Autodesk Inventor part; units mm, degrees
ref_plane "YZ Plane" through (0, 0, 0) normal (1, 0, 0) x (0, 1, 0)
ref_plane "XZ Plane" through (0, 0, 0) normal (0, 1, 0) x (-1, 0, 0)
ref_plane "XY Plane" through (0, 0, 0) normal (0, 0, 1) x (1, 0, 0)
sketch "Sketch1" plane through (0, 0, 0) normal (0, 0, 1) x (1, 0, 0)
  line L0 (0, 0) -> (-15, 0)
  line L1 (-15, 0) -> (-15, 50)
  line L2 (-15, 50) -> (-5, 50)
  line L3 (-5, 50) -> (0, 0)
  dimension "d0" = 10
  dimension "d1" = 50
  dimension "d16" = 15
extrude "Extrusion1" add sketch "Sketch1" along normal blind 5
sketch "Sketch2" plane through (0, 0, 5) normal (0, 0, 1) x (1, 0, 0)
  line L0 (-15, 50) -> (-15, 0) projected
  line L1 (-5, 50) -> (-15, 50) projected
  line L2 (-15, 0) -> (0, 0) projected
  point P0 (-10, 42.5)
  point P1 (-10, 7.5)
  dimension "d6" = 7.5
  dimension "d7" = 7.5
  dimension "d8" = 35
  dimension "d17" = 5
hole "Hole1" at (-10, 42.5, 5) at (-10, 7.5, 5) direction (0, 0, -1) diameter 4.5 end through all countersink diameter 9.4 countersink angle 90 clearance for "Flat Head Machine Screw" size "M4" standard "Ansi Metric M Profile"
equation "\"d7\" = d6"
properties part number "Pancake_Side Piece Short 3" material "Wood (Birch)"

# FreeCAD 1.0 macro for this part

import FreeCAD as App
import Part
import Sketcher
from FreeCAD import Vector
Q = App.Units.Quantity

doc = App.newDocument("Part")
body = doc.addObject("PartDesign::Body", "Body")

# Sketch on XY plane
sketch1 = body.newObject("Sketcher::SketchObject", "Sketch")
sketch1.AttachmentSupport = (doc.getObject("XY_Plane"), [""])
sketch1.MapMode = "FlatFace"
sketch1.addGeometry([
    Part.LineSegment(Vector(-15, 0, 0), Vector(0, 0, 0)),
    Part.LineSegment(Vector(0, 0, 0), Vector(-5, 50, 0)),
    Part.LineSegment(Vector(-5, 50, 0), Vector(-15, 50, 0)),
    Part.LineSegment(Vector(-15, 50, 0), Vector(-15, 0, 0)),
], False)
sketch1.addConstraint([
    Sketcher.Constraint("Coincident", 0, 2, 1, 1),
    Sketcher.Constraint("Coincident", 1, 2, 2, 1),
    Sketcher.Constraint("Coincident", 2, 2, 3, 1),
    Sketcher.Constraint("Coincident", 3, 2, 0, 1),
    Sketcher.Constraint("Horizontal", 0),
    Sketcher.Constraint("Horizontal", 2),
    Sketcher.Constraint("Vertical", 3),
    Sketcher.Constraint("Coincident", 0, 2, -1, 1),
    Sketcher.Constraint("DistanceX", 0, 1, 0, 2, Q("15 mm")),
    Sketcher.Constraint("DistanceX", 2, 2, 2, 1, Q("10 mm")),
    Sketcher.Constraint("DistanceY", 3, 2, 3, 1, Q("50 mm")),
])
pad1 = body.newObject("PartDesign::Pad", "Pad")
pad1.Profile = sketch1
pad1.Length = 5

# Sketch on XY plane
sketch2 = body.newObject("Sketcher::SketchObject", "Sketch001")
sketch2.AttachmentSupport = (doc.getObject("XY_Plane"), [""])
sketch2.MapMode = "FlatFace"
sketch2.AttachmentOffset = App.Placement(Vector(0, 0, 5), App.Rotation())
sketch2.addGeometry([
    Part.Circle(Vector(-10, 42.5, 0), Vector(0, 0, 1), 2.2),
    Part.Circle(Vector(-10, 7.5, 0), Vector(0, 0, 1), 2.2),
], False)
sketch2.addConstraint([
    Sketcher.Constraint("Equal", 0, 1),
    Sketcher.Constraint("Vertical", 0, 3, 1, 3),
    Sketcher.Constraint("Diameter", 0, Q("4.5 mm")),
    Sketcher.Constraint("DistanceX", 0, 3, -1, 1, Q("10 mm")),
    Sketcher.Constraint("DistanceY", 1, 3, 0, 3, Q("35 mm")),
    Sketcher.Constraint("DistanceY", -1, 1, 0, 3, Q("42.5 mm")),
])
doc.recompute()
hole = body.newObject("PartDesign::Hole", "Hole")
hole.Profile = sketch2
hole.ThreadType = "None"
hole.Diameter = 4.5
hole.DepthType = "ThroughAll"
hole.HoleCutType = "Countersink"
hole.HoleCutDiameter = 9.4
hole.HoleCutCountersinkAngle = 90

doc.recompute()
